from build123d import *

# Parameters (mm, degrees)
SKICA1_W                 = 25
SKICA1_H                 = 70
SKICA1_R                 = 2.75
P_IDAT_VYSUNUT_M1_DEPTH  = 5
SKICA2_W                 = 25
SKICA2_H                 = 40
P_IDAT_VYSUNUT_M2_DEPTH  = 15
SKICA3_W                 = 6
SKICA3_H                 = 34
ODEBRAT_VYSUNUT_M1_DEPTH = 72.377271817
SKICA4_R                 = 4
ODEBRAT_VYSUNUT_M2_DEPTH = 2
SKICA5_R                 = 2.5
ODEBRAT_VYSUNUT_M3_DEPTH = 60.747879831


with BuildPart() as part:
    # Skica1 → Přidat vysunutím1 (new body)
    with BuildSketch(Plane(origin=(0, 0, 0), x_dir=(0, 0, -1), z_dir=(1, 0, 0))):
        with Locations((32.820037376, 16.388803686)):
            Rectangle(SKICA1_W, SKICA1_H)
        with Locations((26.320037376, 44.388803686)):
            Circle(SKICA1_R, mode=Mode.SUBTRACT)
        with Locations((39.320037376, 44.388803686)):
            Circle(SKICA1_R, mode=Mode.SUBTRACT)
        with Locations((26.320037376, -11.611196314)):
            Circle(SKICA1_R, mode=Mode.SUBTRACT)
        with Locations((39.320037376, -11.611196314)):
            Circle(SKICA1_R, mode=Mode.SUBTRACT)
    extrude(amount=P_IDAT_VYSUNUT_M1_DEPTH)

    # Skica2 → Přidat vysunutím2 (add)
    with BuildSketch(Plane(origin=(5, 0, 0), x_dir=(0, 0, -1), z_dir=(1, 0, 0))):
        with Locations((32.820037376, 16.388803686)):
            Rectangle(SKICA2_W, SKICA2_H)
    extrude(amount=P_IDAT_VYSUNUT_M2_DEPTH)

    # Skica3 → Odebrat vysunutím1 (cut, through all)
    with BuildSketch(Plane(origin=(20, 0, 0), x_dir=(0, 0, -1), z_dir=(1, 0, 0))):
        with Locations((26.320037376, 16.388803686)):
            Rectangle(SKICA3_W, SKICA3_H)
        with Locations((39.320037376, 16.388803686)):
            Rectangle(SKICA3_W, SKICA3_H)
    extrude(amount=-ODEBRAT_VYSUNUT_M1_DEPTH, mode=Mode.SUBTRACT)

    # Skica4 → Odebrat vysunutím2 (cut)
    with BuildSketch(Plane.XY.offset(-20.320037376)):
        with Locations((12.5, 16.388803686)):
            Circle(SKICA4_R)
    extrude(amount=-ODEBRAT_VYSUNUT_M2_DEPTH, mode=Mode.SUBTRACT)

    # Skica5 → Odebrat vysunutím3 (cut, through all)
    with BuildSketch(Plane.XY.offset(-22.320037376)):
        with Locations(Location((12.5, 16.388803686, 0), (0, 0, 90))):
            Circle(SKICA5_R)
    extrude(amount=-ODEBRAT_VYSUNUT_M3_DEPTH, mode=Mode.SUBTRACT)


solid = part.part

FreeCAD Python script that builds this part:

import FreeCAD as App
import Part
import Sketcher
from FreeCAD import Vector
Q = App.Units.Quantity


def add_polygon(sketch, points):
    """Adds a closed chain of lines whose ends are joined by coincident constraints."""
    first, n = sketch.GeometryCount, len(points)
    for a, b in zip(points, points[1:] + points[:1]):
        sketch.addGeometry(Part.LineSegment(App.Vector(*a, 0), App.Vector(*b, 0)), False)
    for i in range(n):
        sketch.addConstraint(Sketcher.Constraint("Coincident", first + i, 2, first + (i + 1) % n, 1))

doc = App.newDocument("Part")
body = doc.addObject("PartDesign::Body", "Body")

sketch1 = body.newObject("Sketcher::SketchObject", "Sketch")
sketch1.AttachmentSupport = (doc.getObject("YZ_Plane"), [""])
sketch1.MapMode = "FlatFace"
add_polygon(sketch1, [(51.4, -20.3), (-18.6, -20.3), (-18.6, -45.3), (51.4, -45.3)])
sketch1.addGeometry(Part.Circle(Vector(-11.6, -26.3, 0), Vector(0, 0, 1), 2.8), False)
sketch1.addGeometry(Part.Circle(Vector(-11.6, -39.3, 0), Vector(0, 0, 1), 2.8), False)
sketch1.addGeometry(Part.Circle(Vector(44.4, -26.3, 0), Vector(0, 0, 1), 2.8), False)
sketch1.addGeometry(Part.Circle(Vector(44.4, -39.3, 0), Vector(0, 0, 1), 2.8), False)
sketch1.addConstraint([
    Sketcher.Constraint("Horizontal", 0),
    Sketcher.Constraint("Vertical", 1),
    Sketcher.Constraint("Horizontal", 2),
    Sketcher.Constraint("Vertical", 3),
    Sketcher.Constraint("Equal", 4, 5),
    Sketcher.Constraint("Equal", 5, 6),
    Sketcher.Constraint("Equal", 6, 7),
    Sketcher.Constraint("Horizontal", 4, 3, 6, 3),
    Sketcher.Constraint("Horizontal", 5, 3, 7, 3),
    Sketcher.Constraint("Vertical", 4, 3, 5, 3),
    Sketcher.Constraint("Vertical", 6, 3, 7, 3),
    Sketcher.Constraint("Diameter", 4, Q("5.5 mm")),
    Sketcher.Constraint("DistanceX", 0, 2, 0, 1, Q("70 mm")),
    Sketcher.Constraint("DistanceY", 1, 2, 1, 1, Q("25 mm")),
    Sketcher.Constraint("DistanceY", 5, 3, 4, 3, Q("13 mm")),
    Sketcher.Constraint("DistanceX", 4, 3, 6, 3, Q("56 mm")),
    Sketcher.Constraint("DistanceX", 0, 2, 4, 3, Q("7 mm")),
    Sketcher.Constraint("DistanceY", 4, 3, 0, 2, Q("6 mm")),
    Sketcher.Constraint("DistanceX", 4, 3, -1, 1, Q("11.611196 mm")),
    Sketcher.Constraint("DistanceY", 4, 3, -1, 1, Q("26.320037 mm")),
])
pad1 = body.newObject("PartDesign::Pad", "Pad")
pad1.Profile = sketch1
pad1.Length = 5

sketch2 = body.newObject("Sketcher::SketchObject", "Sketch001")
sketch2.AttachmentSupport = (doc.getObject("YZ_Plane"), [""])
sketch2.MapMode = "FlatFace"
sketch2.AttachmentOffset = App.Placement(Vector(0, 0, 5), App.Rotation())
add_polygon(sketch2, [(36, -20), (-4, -20), (-4, -45), (36, -45)])
sketch2.addConstraint([
    Sketcher.Constraint("Horizontal", 0),
    Sketcher.Constraint("Vertical", 1),
    Sketcher.Constraint("Horizontal", 2),
    Sketcher.Constraint("Vertical", 3),
    Sketcher.Constraint("DistanceX", 0, 2, 0, 1, Q("40 mm")),
    Sketcher.Constraint("DistanceY", 1, 2, 1, 1, Q("25 mm")),
    Sketcher.Constraint("DistanceX", 0, 2, -1, 1, Q("3.611196 mm")),
    Sketcher.Constraint("DistanceY", 0, 2, -1, 1, Q("20.320037 mm")),
])
pad2 = body.newObject("PartDesign::Pad", "Pad001")
pad2.Profile = sketch2
pad2.Length = 15

sketch3 = body.newObject("Sketcher::SketchObject", "Sketch002")
sketch3.AttachmentSupport = (doc.getObject("YZ_Plane"), [""])
sketch3.MapMode = "FlatFace"
sketch3.AttachmentOffset = App.Placement(Vector(0, 0, 20), App.Rotation())
add_polygon(sketch3, [(33, -23), (-1, -23), (-1, -29), (33, -29)])
add_polygon(sketch3, [(33, -36), (-1, -36), (-1, -42), (33, -42)])
sketch3.addConstraint([
    Sketcher.Constraint("Horizontal", 0),
    Sketcher.Constraint("Vertical", 1),
    Sketcher.Constraint("Horizontal", 2),
    Sketcher.Constraint("Vertical", 3),
    Sketcher.Constraint("Horizontal", 4),
    Sketcher.Constraint("Vertical", 5),
    Sketcher.Constraint("Horizontal", 6),
    Sketcher.Constraint("Vertical", 7),
    Sketcher.Constraint("Vertical", 1, 2, 4, 2),
    Sketcher.Constraint("Vertical", 3, 2, 6, 2),
    Sketcher.Constraint("Equal", 3, 5),
    Sketcher.Constraint("DistanceX", 0, 2, 0, 1, Q("34 mm")),
    Sketcher.Constraint("DistanceY", 1, 2, 1, 1, Q("6 mm")),
    Sketcher.Constraint("DistanceY", 4, 2, 1, 2, Q("7 mm")),
    Sketcher.Constraint("DistanceX", 0, 2, -1, 1, Q("0.611196 mm")),
    Sketcher.Constraint("DistanceY", 0, 2, -1, 1, Q("23.320037 mm")),
])
pocket1 = body.newObject("PartDesign::Pocket", "Pocket")
pocket1.Profile = sketch3
pocket1.Type = "ThroughAll"

sketch4 = body.newObject("Sketcher::SketchObject", "Sketch003")
sketch4.AttachmentSupport = (doc.getObject("XY_Plane"), [""])
sketch4.MapMode = "FlatFace"
sketch4.AttachmentOffset = App.Placement(Vector(0, 0, -20.320037), App.Rotation())
sketch4.addGeometry(Part.Circle(Vector(12.5, 16.4, 0), Vector(0, 0, 1), 4), False)
sketch4.addConstraint([
    Sketcher.Constraint("Diameter", 0, Q("8 mm")),
    Sketcher.Constraint("DistanceX", -1, 1, 0, 3, Q("12.5 mm")),
    Sketcher.Constraint("DistanceY", -1, 1, 0, 3, Q("16.388804 mm")),
])
pocket2 = body.newObject("PartDesign::Pocket", "Pocket001")
pocket2.Profile = sketch4
pocket2.Length = 2

sketch5 = body.newObject("Sketcher::SketchObject", "Sketch004")
sketch5.AttachmentSupport = (doc.getObject("XY_Plane"), [""])
sketch5.MapMode = "FlatFace"
sketch5.AttachmentOffset = App.Placement(Vector(0, 0, -22.320037), App.Rotation())
sketch5.addGeometry(Part.Circle(Vector(12.5, 16.4, 0), Vector(0, 0, 1), 2.5), False)
sketch5.addConstraint([
    Sketcher.Constraint("Diameter", 0, Q("5 mm")),
    Sketcher.Constraint("DistanceX", -1, 1, 0, 3, Q("12.5 mm")),
    Sketcher.Constraint("DistanceY", -1, 1, 0, 3, Q("16.388804 mm")),
])
pocket3 = body.newObject("PartDesign::Pocket", "Pocket002")
pocket3.Profile = sketch5
pocket3.Type = "ThroughAll"

doc.recompute()
